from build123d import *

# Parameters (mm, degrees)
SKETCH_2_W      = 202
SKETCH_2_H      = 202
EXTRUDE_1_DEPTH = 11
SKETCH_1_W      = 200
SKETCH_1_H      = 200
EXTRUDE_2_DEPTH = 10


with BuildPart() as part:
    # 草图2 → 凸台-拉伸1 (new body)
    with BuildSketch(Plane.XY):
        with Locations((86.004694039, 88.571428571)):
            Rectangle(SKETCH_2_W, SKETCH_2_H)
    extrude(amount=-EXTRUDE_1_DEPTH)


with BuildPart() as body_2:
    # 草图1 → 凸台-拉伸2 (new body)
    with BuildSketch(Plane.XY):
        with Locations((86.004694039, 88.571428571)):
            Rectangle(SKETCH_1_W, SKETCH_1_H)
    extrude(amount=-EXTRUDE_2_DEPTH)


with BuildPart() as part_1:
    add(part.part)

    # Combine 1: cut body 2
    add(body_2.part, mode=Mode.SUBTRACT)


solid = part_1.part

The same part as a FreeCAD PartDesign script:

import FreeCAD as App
import Part
import Sketcher
from FreeCAD import Vector
Q = App.Units.Quantity


def add_polygon(sketch, points):
    """Adds a closed chain of lines whose ends are joined by coincident constraints."""
    first, n = sketch.GeometryCount, len(points)
    for a, b in zip(points, points[1:] + points[:1]):
        sketch.addGeometry(Part.LineSegment(App.Vector(*a, 0), App.Vector(*b, 0)), False)
    for i in range(n):
        sketch.addConstraint(Sketcher.Constraint("Coincident", first + i, 2, first + (i + 1) % n, 1))

doc = App.newDocument("Part")
body = doc.addObject("PartDesign::Body", "Body")

sketch1 = body.newObject("Sketcher::SketchObject", "Sketch")
sketch1.AttachmentSupport = (doc.getObject("XY_Plane"), [""])
sketch1.MapMode = "FlatFace"
add_polygon(sketch1, [(-14.995306, 189.571429), (-14.995306, -12.428571), (187.004694, -12.428571), (187.004694, 189.571429)])
sketch1.addConstraint(Sketcher.Constraint("Vertical", 0))
sketch1.addConstraint(Sketcher.Constraint("Horizontal", 1))
sketch1.addConstraint(Sketcher.Constraint("Vertical", 2))
sketch1.addConstraint(Sketcher.Constraint("Horizontal", 3))
sketch1.addConstraint(Sketcher.Constraint("Equal", 3, 0))
sketch1.addConstraint(Sketcher.Constraint("DistanceX", 1, 1, 1, 2, Q("202 mm")))
sketch1.addConstraint(Sketcher.Constraint("DistanceY", 0, 2, -1, 1, Q("12.428571 mm")))
sketch1.addConstraint(Sketcher.Constraint("DistanceX", 0, 2, -1, 1, Q("14.995306 mm")))
pad1 = body.newObject("PartDesign::Pad", "Pad")
pad1.Profile = sketch1
pad1.Length = 11
pad1.Reversed = True
body2 = doc.addObject("PartDesign::Body", "Body001")

sketch2 = body2.newObject("Sketcher::SketchObject", "Sketch001")
sketch2.AttachmentSupport = (doc.getObject("XY_Plane001"), [""])
sketch2.MapMode = "FlatFace"
add_polygon(sketch2, [(-13.995306, 188.571429), (-13.995306, -11.428571), (186.004694, -11.428571), (186.004694, 188.571429)])
sketch2.addConstraint(Sketcher.Constraint("Vertical", 0))
sketch2.addConstraint(Sketcher.Constraint("Horizontal", 1))
sketch2.addConstraint(Sketcher.Constraint("Vertical", 2))
sketch2.addConstraint(Sketcher.Constraint("Horizontal", 3))
sketch2.addConstraint(Sketcher.Constraint("Equal", 3, 0))
sketch2.addConstraint(Sketcher.Constraint("DistanceX", 1, 1, 1, 2, Q("200 mm")))
sketch2.addConstraint(Sketcher.Constraint("DistanceY", 0, 2, -1, 1, Q("11.428571 mm")))
sketch2.addConstraint(Sketcher.Constraint("DistanceX", 0, 2, -1, 1, Q("13.995306 mm")))
pad2 = body2.newObject("PartDesign::Pad", "Pad001")
pad2.Profile = sketch2
pad2.Length = 10
pad2.Reversed = True
doc.recompute()

boolean = body.newObject("PartDesign::Boolean", "Boolean")
boolean.Type = "Cut"
boolean.addObjects([body2])

doc.recompute()
